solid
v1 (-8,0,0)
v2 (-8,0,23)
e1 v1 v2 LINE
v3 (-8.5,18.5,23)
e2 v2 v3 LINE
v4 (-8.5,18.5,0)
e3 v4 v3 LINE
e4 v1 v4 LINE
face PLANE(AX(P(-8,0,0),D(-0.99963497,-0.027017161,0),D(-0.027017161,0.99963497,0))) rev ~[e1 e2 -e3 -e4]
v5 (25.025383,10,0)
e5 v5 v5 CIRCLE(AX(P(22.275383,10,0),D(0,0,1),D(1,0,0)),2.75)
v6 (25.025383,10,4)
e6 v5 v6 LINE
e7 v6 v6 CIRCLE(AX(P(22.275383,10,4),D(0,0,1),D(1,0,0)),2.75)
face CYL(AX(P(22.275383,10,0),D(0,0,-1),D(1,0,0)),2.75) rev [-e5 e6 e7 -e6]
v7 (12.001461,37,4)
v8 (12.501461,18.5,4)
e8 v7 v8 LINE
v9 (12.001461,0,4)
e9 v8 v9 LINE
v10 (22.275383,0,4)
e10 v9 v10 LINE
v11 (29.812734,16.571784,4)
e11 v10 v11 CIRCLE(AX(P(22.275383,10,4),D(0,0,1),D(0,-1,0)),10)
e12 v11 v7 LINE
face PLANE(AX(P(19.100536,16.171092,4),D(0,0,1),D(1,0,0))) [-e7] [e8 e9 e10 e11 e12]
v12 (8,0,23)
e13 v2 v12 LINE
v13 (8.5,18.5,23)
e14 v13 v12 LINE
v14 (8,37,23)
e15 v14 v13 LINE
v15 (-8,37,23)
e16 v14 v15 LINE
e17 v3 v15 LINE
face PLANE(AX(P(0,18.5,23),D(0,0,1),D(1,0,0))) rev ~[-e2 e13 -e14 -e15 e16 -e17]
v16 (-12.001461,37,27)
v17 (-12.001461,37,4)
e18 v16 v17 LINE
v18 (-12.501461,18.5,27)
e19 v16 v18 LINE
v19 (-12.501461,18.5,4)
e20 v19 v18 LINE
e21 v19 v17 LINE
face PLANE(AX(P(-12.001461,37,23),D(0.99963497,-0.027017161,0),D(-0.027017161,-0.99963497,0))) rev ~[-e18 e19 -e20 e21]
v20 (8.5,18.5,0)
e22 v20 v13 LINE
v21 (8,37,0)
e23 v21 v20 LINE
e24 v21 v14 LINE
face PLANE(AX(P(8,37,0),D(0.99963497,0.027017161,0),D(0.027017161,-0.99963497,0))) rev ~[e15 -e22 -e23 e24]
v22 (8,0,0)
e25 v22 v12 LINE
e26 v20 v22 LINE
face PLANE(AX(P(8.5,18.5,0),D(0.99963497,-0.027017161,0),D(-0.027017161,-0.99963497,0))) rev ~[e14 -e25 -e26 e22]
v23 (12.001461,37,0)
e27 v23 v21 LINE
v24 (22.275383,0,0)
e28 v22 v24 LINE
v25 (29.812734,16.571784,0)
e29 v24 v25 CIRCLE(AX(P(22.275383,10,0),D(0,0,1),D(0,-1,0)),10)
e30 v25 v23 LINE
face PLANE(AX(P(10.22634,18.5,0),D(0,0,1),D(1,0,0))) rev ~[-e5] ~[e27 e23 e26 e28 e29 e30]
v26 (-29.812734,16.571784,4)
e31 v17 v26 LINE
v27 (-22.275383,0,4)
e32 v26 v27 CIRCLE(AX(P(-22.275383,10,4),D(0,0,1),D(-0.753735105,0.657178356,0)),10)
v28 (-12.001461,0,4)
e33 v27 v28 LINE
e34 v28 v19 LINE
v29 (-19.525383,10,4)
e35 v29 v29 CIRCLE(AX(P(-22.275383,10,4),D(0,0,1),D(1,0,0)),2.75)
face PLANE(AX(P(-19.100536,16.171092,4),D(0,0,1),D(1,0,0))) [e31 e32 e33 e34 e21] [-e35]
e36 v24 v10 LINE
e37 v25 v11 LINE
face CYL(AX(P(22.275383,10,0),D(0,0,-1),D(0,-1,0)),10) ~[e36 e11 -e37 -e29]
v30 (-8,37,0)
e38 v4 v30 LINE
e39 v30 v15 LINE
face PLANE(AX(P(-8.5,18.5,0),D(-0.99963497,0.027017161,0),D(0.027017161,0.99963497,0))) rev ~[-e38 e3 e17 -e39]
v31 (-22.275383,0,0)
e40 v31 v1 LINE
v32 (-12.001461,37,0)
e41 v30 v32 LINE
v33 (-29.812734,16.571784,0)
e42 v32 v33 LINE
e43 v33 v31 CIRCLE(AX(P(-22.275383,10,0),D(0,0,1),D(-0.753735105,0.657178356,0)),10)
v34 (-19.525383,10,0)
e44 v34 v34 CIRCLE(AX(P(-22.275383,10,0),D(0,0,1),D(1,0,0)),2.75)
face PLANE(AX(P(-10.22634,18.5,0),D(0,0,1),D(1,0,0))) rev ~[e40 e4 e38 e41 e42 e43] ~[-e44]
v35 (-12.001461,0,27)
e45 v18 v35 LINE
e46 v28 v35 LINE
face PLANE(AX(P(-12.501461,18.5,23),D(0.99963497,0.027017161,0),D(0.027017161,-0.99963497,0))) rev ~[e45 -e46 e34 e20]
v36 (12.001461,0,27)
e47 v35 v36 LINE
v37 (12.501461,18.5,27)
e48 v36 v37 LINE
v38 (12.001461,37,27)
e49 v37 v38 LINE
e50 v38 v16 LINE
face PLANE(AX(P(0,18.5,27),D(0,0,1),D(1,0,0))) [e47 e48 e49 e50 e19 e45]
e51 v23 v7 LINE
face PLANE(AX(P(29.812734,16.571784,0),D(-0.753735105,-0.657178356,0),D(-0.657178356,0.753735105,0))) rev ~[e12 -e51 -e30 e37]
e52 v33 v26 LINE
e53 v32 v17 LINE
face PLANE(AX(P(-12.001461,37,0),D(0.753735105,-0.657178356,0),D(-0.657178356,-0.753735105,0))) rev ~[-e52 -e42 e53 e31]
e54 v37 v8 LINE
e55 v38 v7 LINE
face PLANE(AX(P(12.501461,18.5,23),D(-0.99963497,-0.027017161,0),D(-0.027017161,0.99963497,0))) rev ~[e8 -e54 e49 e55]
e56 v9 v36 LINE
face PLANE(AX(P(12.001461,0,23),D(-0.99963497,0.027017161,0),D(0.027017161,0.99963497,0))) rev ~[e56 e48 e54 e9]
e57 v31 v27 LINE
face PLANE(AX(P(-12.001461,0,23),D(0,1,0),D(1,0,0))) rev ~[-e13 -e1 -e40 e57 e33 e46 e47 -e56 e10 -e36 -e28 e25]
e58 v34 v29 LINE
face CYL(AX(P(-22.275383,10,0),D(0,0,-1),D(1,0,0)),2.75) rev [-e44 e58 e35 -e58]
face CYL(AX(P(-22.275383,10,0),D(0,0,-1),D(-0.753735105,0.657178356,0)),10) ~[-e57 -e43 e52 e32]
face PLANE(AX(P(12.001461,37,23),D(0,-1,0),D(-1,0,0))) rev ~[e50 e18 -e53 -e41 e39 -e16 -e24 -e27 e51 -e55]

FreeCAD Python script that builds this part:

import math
import FreeCAD as App
import Part
import Sketcher
Q = App.Units.Quantity


def add_polygon(sketch, points):
    """Adds a closed chain of lines whose ends are joined by coincident constraints."""
    first, n = sketch.GeometryCount, len(points)
    for a, b in zip(points, points[1:] + points[:1]):
        sketch.addGeometry(Part.LineSegment(App.Vector(*a, 0), App.Vector(*b, 0)), False)
    for i in range(n):
        sketch.addConstraint(Sketcher.Constraint("Coincident", first + i, 2, first + (i + 1) % n, 1))

doc = App.newDocument("Part")
body = doc.addObject("PartDesign::Body", "Body")

# Sketch on XY plane
sketch1 = body.newObject("Sketcher::SketchObject", "Sketch")
sketch1.AttachmentSupport = (doc.getObject("XY_Plane"), [""])
sketch1.MapMode = "FlatFace"
sketch1.addGeometry(Part.LineSegment(App.Vector(12.5, 18.5, 0), App.Vector(12, 0, 0)), False)
sketch1.addGeometry(Part.LineSegment(App.Vector(12, 0, 0), App.Vector(22.3, 0, 0)), False)
sketch1.addGeometry(Part.ArcOfCircle(Part.Circle(App.Vector(22.3, 10, 0), App.Vector(0, 0, 1), 10), math.radians(-90), math.radians(41)), False)
sketch1.addGeometry(Part.LineSegment(App.Vector(29.8, 16.6, 0), App.Vector(12, 37, 0)), False)
sketch1.addGeometry(Part.LineSegment(App.Vector(12, 37, 0), App.Vector(12.5, 18.5, 0)), False)
sketch1.addGeometry(Part.Circle(App.Vector(22.3, 10, 0), App.Vector(0, 0, 1), 2.8), False)
sketch1.addConstraint(Sketcher.Constraint("Coincident", 0, 2, 1, 1))
sketch1.addConstraint(Sketcher.Constraint("Tangent", 1, 2, 2, 1))
sketch1.addConstraint(Sketcher.Constraint("Tangent", 2, 2, 3, 1))
sketch1.addConstraint(Sketcher.Constraint("Coincident", 3, 2, 4, 1))
sketch1.addConstraint(Sketcher.Constraint("Coincident", 4, 2, 0, 1))
sketch1.addConstraint(Sketcher.Constraint("Horizontal", 1))
sketch1.addConstraint(Sketcher.Constraint("Coincident", 5, 3, 2, 3))
sketch1.addConstraint(Sketcher.Constraint("PointOnObject", 0, 2, -1))
sketch1.addConstraint(Sketcher.Constraint("Vertical", 0, 2, 3, 2))
sketch1.addConstraint(Sketcher.Constraint("Equal", 0, 4))
sketch1.addConstraint(Sketcher.Constraint("Radius", 2, Q("10 mm")))
sketch1.addConstraint(Sketcher.Constraint("Diameter", 5, Q("5.5 mm")))
sketch1.addConstraint(Sketcher.Constraint("DistanceY", -1, 1, 3, 2, Q("37 mm")))
sketch1.addConstraint(Sketcher.Constraint("DistanceX", 0, 2, 4, 2, Q("0.5 mm")))
sketch1.addConstraint(Sketcher.Constraint("DistanceX", 1, 1, 1, 2, Q("10.273922 mm")))
sketch1.addConstraint(Sketcher.Constraint("DistanceX", -1, 1, 0, 2, Q("12.001461 mm")))
pad1 = body.newObject("PartDesign::Pad", "Pad")
pad1.Profile = sketch1
pad1.Length = 4

# Sketch on XY plane
sketch2 = body.newObject("Sketcher::SketchObject", "Sketch001")
sketch2.AttachmentSupport = (doc.getObject("XY_Plane"), [""])
sketch2.MapMode = "FlatFace"
add_polygon(sketch2, [(8.5, 18.5), (8, 0), (12, 0), (12.5, 18.5), (12, 37), (8, 37)])  # lines 0-5
sketch2.addConstraint(Sketcher.Constraint("Horizontal", 1))
sketch2.addConstraint(Sketcher.Constraint("Horizontal", 4))
sketch2.addConstraint(Sketcher.Constraint("PointOnObject", 0, 2, -1))
sketch2.addConstraint(Sketcher.Constraint("Parallel", 0, 2))
sketch2.addConstraint(Sketcher.Constraint("Parallel", 3, 5))
sketch2.addConstraint(Sketcher.Constraint("Horizontal", 2, 2, 5, 2))
sketch2.addConstraint(Sketcher.Constraint("Vertical", 1, 2, 3, 2))
sketch2.addConstraint(Sketcher.Constraint("Equal", 2, 3))
sketch2.addConstraint(Sketcher.Constraint("DistanceX", -1, 1, 0, 2, Q("8 mm")))
sketch2.addConstraint(Sketcher.Constraint("DistanceY", -1, 1, 3, 2, Q("37 mm")))
sketch2.addConstraint(Sketcher.Constraint("DistanceX", -1, 1, 5, 2, Q("8.5 mm")))
sketch2.addConstraint(Sketcher.Constraint("DistanceX", 1, 1, 1, 2, Q("4.001461 mm")))
pad2 = body.newObject("PartDesign::Pad", "Pad001")
pad2.Profile = sketch2
pad2.Length = 23
body2 = doc.addObject("PartDesign::Body", "Body001")

# Sketch on XY plane
sketch3 = body2.newObject("Sketcher::SketchObject", "Sketch002")
sketch3.AttachmentSupport = (doc.getObject("XY_Plane001"), [""])
sketch3.MapMode = "FlatFace"
sketch3.addGeometry(Part.ArcOfCircle(Part.Circle(App.Vector(-22.3, 10, 0), App.Vector(0, 0, 1), 10), math.radians(139), math.radians(270)), False)
sketch3.addGeometry(Part.LineSegment(App.Vector(-22.3, 0, 0), App.Vector(-12, 0, 0)), False)
sketch3.addGeometry(Part.LineSegment(App.Vector(-12, 0, 0), App.Vector(-12.5, 18.5, 0)), False)
sketch3.addGeometry(Part.LineSegment(App.Vector(-12.5, 18.5, 0), App.Vector(-12, 37, 0)), False)
sketch3.addGeometry(Part.LineSegment(App.Vector(-12, 37, 0), App.Vector(-29.8, 16.6, 0)), False)
sketch3.addGeometry(Part.Circle(App.Vector(-22.3, 10, 0), App.Vector(0, 0, 1), 2.8), False)
sketch3.addConstraint(Sketcher.Constraint("Tangent", 0, 2, 1, 1))
sketch3.addConstraint(Sketcher.Constraint("Coincident", 1, 2, 2, 1))
sketch3.addConstraint(Sketcher.Constraint("Coincident", 2, 2, 3, 1))
sketch3.addConstraint(Sketcher.Constraint("Coincident", 3, 2, 4, 1))
sketch3.addConstraint(Sketcher.Constraint("Tangent", 4, 2, 0, 1))
sketch3.addConstraint(Sketcher.Constraint("Horizontal", 1))
sketch3.addConstraint(Sketcher.Constraint("Coincident", 5, 3, 0, 3))
sketch3.addConstraint(Sketcher.Constraint("PointOnObject", 0, 2, -1))
sketch3.addConstraint(Sketcher.Constraint("Vertical", 1, 2, 3, 2))
sketch3.addConstraint(Sketcher.Constraint("Equal", 2, 3))
sketch3.addConstraint(Sketcher.Constraint("Radius", 0, Q("10 mm")))
sketch3.addConstraint(Sketcher.Constraint("Diameter", 5, Q("5.5 mm")))
sketch3.addConstraint(Sketcher.Constraint("DistanceY", -1, 1, 3, 2, Q("37 mm")))
sketch3.addConstraint(Sketcher.Constraint("DistanceX", 2, 2, 1, 2, Q("0.5 mm")))
sketch3.addConstraint(Sketcher.Constraint("DistanceX", 1, 1, 1, 2, Q("10.273922 mm")))
sketch3.addConstraint(Sketcher.Constraint("DistanceX", 1, 2, -1, 1, Q("12.001461 mm")))
pad3 = body2.newObject("PartDesign::Pad", "Pad002")
pad3.Profile = sketch3
pad3.Length = 4

# Sketch on XY plane
sketch4 = body2.newObject("Sketcher::SketchObject", "Sketch003")
sketch4.AttachmentSupport = (doc.getObject("XY_Plane001"), [""])
sketch4.MapMode = "FlatFace"
add_polygon(sketch4, [(-12.5, 18.5), (-12, 0), (-8, 0), (-8.5, 18.5), (-8, 37), (-12, 37)])  # lines 0-5
sketch4.addConstraint(Sketcher.Constraint("Horizontal", 1))
sketch4.addConstraint(Sketcher.Constraint("Horizontal", 4))
sketch4.addConstraint(Sketcher.Constraint("PointOnObject", 0, 2, -1))
sketch4.addConstraint(Sketcher.Constraint("Parallel", 0, 2))
sketch4.addConstraint(Sketcher.Constraint("Parallel", 3, 5))
sketch4.addConstraint(Sketcher.Constraint("Horizontal", 2, 2, 5, 2))
sketch4.addConstraint(Sketcher.Constraint("Vertical", 1, 2, 3, 2))
sketch4.addConstraint(Sketcher.Constraint("Equal", 2, 3))
sketch4.addConstraint(Sketcher.Constraint("DistanceX", 1, 2, -1, 1, Q("8 mm")))
sketch4.addConstraint(Sketcher.Constraint("DistanceY", -1, 1, 3, 2, Q("37 mm")))
sketch4.addConstraint(Sketcher.Constraint("DistanceX", 2, 2, -1, 1, Q("8.5 mm")))
sketch4.addConstraint(Sketcher.Constraint("DistanceX", 1, 1, 1, 2, Q("4.001461 mm")))
pad4 = body2.newObject("PartDesign::Pad", "Pad003")
pad4.Profile = sketch4
pad4.Length = 23
body.AllowCompound = True
doc.recompute()

boolean = body.newObject("PartDesign::Boolean", "Boolean")
boolean.Type = "Fuse"
boolean.addObjects([body2])

# Sketch on XY plane
sketch5 = body.newObject("Sketcher::SketchObject", "Sketch004")
sketch5.AttachmentSupport = (doc.getObject("XY_Plane"), [""])
sketch5.MapMode = "FlatFace"
sketch5.AttachmentOffset = App.Placement(App.Vector(0, 0, 23), App.Rotation())
add_polygon(sketch5, [(-12, 37), (-13, 18), (-12, 0), (12, 0), (13, 18), (12, 37)])  # lines 0-5
sketch5.addConstraint(Sketcher.Constraint("Horizontal", 2))
sketch5.addConstraint(Sketcher.Constraint("Horizontal", 5))
sketch5.addConstraint(Sketcher.Constraint("Symmetric", 1, 2, 2, 2, -1, 1))
sketch5.addConstraint(Sketcher.Constraint("Symmetric", 0, 2, 3, 2, -2))
sketch5.addConstraint(Sketcher.Constraint("Parallel", 0, 3))
sketch5.addConstraint(Sketcher.Constraint("Parallel", 1, 4))
sketch5.addConstraint(Sketcher.Constraint("Vertical", 2, 2, 4, 2))
sketch5.addConstraint(Sketcher.Constraint("DistanceY", -1, 1, 4, 2, Q("37 mm")))
sketch5.addConstraint(Sketcher.Constraint("DistanceX", 0, 2, 1, 2, Q("0.5 mm")))
sketch5.addConstraint(Sketcher.Constraint("DistanceX", 2, 1, 2, 2, Q("24.002921 mm")))
pad5 = body.newObject("PartDesign::Pad", "Pad004")
pad5.Profile = sketch5
pad5.Length = 4

doc.recompute()
